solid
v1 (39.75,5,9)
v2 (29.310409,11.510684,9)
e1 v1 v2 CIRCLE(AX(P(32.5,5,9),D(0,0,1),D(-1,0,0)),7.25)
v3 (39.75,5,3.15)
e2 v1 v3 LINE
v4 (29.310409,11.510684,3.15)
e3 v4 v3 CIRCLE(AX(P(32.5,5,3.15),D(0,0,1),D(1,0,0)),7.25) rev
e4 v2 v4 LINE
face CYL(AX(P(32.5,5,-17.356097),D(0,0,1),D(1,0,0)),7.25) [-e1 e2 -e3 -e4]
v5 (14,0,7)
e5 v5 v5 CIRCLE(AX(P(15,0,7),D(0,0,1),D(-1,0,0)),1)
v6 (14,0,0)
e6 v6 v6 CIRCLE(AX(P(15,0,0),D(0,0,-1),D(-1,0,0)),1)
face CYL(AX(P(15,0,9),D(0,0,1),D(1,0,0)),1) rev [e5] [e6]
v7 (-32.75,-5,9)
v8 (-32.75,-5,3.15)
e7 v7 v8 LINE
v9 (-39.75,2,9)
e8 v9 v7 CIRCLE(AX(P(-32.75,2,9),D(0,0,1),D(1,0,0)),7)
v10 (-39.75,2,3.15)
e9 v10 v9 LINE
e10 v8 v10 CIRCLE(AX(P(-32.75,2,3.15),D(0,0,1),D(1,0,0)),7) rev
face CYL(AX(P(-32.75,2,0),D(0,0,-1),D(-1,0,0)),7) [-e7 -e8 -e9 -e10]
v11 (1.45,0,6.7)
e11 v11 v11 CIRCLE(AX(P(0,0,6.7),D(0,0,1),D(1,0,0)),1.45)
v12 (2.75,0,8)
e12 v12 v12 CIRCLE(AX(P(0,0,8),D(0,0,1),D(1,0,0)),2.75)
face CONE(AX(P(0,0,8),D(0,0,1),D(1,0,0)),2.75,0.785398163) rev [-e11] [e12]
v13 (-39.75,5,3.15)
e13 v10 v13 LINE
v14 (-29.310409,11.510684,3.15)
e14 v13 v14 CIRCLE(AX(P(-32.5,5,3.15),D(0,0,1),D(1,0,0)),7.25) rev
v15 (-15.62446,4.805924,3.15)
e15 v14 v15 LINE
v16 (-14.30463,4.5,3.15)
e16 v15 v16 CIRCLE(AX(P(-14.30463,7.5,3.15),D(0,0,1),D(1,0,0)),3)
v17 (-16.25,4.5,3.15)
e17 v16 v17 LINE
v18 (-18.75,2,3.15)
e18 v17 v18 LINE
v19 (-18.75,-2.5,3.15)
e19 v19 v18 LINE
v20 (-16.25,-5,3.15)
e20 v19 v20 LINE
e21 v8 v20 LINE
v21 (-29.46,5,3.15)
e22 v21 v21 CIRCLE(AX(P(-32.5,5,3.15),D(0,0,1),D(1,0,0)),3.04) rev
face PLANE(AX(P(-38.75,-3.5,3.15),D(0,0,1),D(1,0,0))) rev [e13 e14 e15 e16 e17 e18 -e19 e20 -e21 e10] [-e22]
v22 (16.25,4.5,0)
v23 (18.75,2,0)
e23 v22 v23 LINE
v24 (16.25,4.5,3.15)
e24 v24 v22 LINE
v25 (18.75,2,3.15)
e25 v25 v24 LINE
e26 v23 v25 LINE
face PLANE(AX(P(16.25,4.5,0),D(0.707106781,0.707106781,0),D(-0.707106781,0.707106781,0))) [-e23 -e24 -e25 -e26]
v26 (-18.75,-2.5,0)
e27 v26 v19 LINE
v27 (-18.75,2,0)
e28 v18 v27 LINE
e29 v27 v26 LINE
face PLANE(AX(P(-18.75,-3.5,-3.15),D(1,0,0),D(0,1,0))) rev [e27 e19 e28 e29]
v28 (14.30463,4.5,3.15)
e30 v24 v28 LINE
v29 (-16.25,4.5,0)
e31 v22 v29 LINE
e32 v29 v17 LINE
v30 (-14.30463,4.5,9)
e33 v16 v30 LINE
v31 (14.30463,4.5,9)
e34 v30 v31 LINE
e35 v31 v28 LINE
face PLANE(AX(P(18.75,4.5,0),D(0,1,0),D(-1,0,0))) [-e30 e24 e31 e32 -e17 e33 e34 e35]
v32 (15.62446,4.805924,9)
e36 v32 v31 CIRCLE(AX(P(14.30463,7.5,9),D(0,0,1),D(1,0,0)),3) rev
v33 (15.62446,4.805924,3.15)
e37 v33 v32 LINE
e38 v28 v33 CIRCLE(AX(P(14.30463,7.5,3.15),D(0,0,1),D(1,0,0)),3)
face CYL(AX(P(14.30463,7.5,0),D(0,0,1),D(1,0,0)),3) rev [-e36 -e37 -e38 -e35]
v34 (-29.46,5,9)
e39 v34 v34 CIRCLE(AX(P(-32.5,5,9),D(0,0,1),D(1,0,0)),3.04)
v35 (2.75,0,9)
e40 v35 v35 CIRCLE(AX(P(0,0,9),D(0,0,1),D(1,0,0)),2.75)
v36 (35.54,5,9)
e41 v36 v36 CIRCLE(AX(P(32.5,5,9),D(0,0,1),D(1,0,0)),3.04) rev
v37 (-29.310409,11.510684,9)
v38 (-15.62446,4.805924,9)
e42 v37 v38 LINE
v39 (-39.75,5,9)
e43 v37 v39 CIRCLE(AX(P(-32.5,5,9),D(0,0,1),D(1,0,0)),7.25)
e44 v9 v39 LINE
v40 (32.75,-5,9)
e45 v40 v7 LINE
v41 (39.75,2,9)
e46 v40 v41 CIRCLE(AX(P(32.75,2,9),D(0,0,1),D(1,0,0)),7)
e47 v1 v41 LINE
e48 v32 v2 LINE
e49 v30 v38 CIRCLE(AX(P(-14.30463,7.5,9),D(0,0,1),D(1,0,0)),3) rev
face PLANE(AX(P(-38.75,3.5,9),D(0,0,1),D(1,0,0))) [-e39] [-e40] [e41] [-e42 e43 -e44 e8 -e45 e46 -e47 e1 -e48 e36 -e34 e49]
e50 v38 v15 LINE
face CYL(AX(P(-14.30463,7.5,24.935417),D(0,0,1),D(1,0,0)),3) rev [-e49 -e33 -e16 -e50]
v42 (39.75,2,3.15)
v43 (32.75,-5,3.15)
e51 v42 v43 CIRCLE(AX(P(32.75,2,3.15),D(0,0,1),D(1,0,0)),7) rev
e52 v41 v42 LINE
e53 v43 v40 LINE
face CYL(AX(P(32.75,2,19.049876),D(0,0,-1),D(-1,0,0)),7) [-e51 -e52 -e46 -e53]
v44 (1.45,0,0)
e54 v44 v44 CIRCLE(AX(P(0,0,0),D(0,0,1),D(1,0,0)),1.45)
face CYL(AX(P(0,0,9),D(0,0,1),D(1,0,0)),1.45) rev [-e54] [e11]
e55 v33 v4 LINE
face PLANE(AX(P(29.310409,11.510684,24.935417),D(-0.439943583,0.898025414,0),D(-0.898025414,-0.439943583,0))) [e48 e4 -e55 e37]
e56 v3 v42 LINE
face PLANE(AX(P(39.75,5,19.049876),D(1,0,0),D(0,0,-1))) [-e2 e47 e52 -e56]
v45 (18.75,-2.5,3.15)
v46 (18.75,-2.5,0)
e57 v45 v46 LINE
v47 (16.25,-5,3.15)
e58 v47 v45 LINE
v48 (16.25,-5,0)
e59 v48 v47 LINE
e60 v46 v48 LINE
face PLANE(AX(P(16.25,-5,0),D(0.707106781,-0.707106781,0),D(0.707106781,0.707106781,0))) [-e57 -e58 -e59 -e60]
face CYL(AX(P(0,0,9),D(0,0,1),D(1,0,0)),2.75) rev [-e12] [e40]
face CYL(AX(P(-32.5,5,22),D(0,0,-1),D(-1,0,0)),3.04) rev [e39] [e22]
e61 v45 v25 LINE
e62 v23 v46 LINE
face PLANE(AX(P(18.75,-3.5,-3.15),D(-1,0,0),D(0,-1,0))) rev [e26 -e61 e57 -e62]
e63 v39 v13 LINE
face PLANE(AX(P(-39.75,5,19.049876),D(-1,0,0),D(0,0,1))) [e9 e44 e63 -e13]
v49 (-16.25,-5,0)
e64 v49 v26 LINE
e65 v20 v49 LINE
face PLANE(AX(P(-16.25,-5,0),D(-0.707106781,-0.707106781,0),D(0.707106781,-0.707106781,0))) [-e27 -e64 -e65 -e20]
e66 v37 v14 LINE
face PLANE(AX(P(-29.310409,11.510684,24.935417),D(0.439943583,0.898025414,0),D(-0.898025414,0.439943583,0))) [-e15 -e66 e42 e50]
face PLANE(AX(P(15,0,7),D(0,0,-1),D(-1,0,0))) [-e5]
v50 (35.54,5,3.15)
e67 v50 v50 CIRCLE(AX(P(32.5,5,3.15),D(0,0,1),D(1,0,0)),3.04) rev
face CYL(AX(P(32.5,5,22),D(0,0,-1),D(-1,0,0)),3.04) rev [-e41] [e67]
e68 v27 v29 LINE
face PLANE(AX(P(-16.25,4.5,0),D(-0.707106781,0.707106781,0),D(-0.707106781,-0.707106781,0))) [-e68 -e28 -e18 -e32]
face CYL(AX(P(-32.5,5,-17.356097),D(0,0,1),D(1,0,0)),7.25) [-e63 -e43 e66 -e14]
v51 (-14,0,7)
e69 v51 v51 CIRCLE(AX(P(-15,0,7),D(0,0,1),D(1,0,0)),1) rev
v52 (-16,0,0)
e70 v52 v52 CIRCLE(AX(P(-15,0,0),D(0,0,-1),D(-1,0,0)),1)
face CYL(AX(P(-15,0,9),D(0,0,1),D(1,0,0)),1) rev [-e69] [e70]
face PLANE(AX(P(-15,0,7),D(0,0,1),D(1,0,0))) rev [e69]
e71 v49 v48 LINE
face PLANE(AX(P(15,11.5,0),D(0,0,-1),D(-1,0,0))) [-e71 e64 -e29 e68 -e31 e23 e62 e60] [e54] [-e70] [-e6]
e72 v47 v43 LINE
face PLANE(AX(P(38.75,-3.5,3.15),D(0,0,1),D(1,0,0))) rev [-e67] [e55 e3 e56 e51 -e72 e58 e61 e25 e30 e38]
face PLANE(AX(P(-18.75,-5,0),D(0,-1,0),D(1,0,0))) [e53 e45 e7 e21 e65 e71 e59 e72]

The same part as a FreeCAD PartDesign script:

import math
import FreeCAD as App
import Part
import Sketcher
from FreeCAD import Vector
Q = App.Units.Quantity


def edges_at(feature, points):
    """Names of the edges that pass closest to the given points."""
    edges = feature.Shape.Edges
    near = lambda p: min(range(len(edges)), key=lambda i: edges[i].distToShape(Part.Vertex(*p))[0])
    return sorted({f"Edge{near(p) + 1}" for p in points})

doc = App.newDocument("Part")
body = doc.addObject("PartDesign::Body", "Body")

sketch1 = body.newObject("Sketcher::SketchObject", "Sketch")
sketch1.AttachmentSupport = (doc.getObject("XY_Plane"), [""])
sketch1.MapMode = "FlatFace"
sketch1.addGeometry([
    Part.LineSegment(Vector(-39, 4, 0), Vector(-39, -4, 0)),
    Part.LineSegment(Vector(-39, -4, 0), Vector(39, -4, 0)),
    Part.LineSegment(Vector(39, -4, 0), Vector(39, 4, 0)),
    Part.LineSegment(Vector(39, 4, 0), Vector(-39, 4, 0)),
], False)
sketch1.addConstraint([
    Sketcher.Constraint("Coincident", 0, 2, 1, 1),
    Sketcher.Constraint("Coincident", 1, 2, 2, 1),
    Sketcher.Constraint("Coincident", 2, 2, 3, 1),
    Sketcher.Constraint("Coincident", 3, 2, 0, 1),
    Sketcher.Constraint("Vertical", 0),
    Sketcher.Constraint("Horizontal", 1),
    Sketcher.Constraint("Vertical", 2),
    Sketcher.Constraint("Horizontal", 3),
    Sketcher.Constraint("Symmetric", 0, 2, 2, 2, -1, 1),
    Sketcher.Constraint("DistanceY", 0, 2, 0, 1, 7.0),
    Sketcher.Constraint("DistanceX", 1, 1, 1, 2, 77.5),
])
pad1 = body.newObject("PartDesign::Pad", "Pad")
pad1.Profile = sketch1
pad1.Type = "TwoLengths"
pad1.Length = 9
pad1.Length2 = 9

sketch2 = body.newObject("Sketcher::SketchObject", "Sketch001")
sketch2.AttachmentSupport = (doc.getObject("XZ_Plane"), [""])
sketch2.MapMode = "FlatFace"
sketch2.AttachmentOffset = App.Placement(Vector(0, 0, -3.5), App.Rotation())
sketch2.addGeometry([
    Part.LineSegment(Vector(-39, -3, 0), Vector(-39, 3, 0)),
    Part.LineSegment(Vector(-39, 3, 0), Vector(-19, 3, 0)),
    Part.LineSegment(Vector(-19, 3, 0), Vector(-19, -3, 0)),
    Part.LineSegment(Vector(-19, -3, 0), Vector(-39, -3, 0)),
    Part.LineSegment(Vector(19, -3, 0), Vector(19, 3, 0)),
    Part.LineSegment(Vector(19, 3, 0), Vector(39, 3, 0)),
    Part.LineSegment(Vector(39, 3, 0), Vector(39, -3, 0)),
    Part.LineSegment(Vector(39, -3, 0), Vector(19, -3, 0)),
], False)
sketch2.addConstraint([
    Sketcher.Constraint("Coincident", 0, 2, 1, 1),
    Sketcher.Constraint("Coincident", 1, 2, 2, 1),
    Sketcher.Constraint("Coincident", 2, 2, 3, 1),
    Sketcher.Constraint("Coincident", 3, 2, 0, 1),
    Sketcher.Constraint("Coincident", 4, 2, 5, 1),
    Sketcher.Constraint("Coincident", 5, 2, 6, 1),
    Sketcher.Constraint("Coincident", 6, 2, 7, 1),
    Sketcher.Constraint("Coincident", 7, 2, 4, 1),
    Sketcher.Constraint("Vertical", 0),
    Sketcher.Constraint("Horizontal", 1),
    Sketcher.Constraint("Vertical", 2),
    Sketcher.Constraint("Horizontal", 3),
    Sketcher.Constraint("Vertical", 4),
    Sketcher.Constraint("Horizontal", 5),
    Sketcher.Constraint("Vertical", 6),
    Sketcher.Constraint("Horizontal", 7),
    Sketcher.Constraint("Symmetric", 2, 2, 4, 2, -1, 1),
    Sketcher.Constraint("Symmetric", 0, 2, 6, 2, -1, 1),
    Sketcher.Constraint("Horizontal", 1, 2, 4, 2),
    Sketcher.Constraint("DistanceX", 1, 1, 1, 2, 20.0),
    Sketcher.Constraint("DistanceY", 0, 1, 0, 2, 6.3),
    Sketcher.Constraint("DistanceX", 1, 2, 4, 2, 37.5),
])
pocket1 = body.newObject("PartDesign::Pocket", "Pocket")
pocket1.Profile = sketch2
pocket1.Type = "ThroughAll"
pocket1.Reversed = True

sketch3 = body.newObject("Sketcher::SketchObject", "Sketch002")
sketch3.AttachmentSupport = (doc.getObject("XZ_Plane"), [""])
sketch3.MapMode = "FlatFace"
sketch3.AttachmentOffset = App.Placement(Vector(0, 0, -3.5), App.Rotation())
sketch3.addGeometry([
    Part.LineSegment(Vector(-39, -9, 0), Vector(-39, -3, 0)),
    Part.LineSegment(Vector(-39, -3, 0), Vector(-26, -3, 0)),
    Part.LineSegment(Vector(-26, -3, 0), Vector(-26, -9, 0)),
    Part.LineSegment(Vector(-26, -9, 0), Vector(-39, -9, 0)),
    Part.LineSegment(Vector(-39, 3, 0), Vector(-39, 9, 0)),
    Part.LineSegment(Vector(-39, 9, 0), Vector(-26, 9, 0)),
    Part.LineSegment(Vector(-26, 9, 0), Vector(-26, 3, 0)),
    Part.LineSegment(Vector(-26, 3, 0), Vector(-39, 3, 0)),
    Part.LineSegment(Vector(26, 3, 0), Vector(26, 9, 0)),
    Part.LineSegment(Vector(26, 9, 0), Vector(39, 9, 0)),
    Part.LineSegment(Vector(39, 9, 0), Vector(39, 3, 0)),
    Part.LineSegment(Vector(39, 3, 0), Vector(26, 3, 0)),
    Part.LineSegment(Vector(26, -9, 0), Vector(26, -3, 0)),
    Part.LineSegment(Vector(26, -3, 0), Vector(39, -3, 0)),
    Part.LineSegment(Vector(39, -3, 0), Vector(39, -9, 0)),
    Part.LineSegment(Vector(39, -9, 0), Vector(26, -9, 0)),
], False)
sketch3.addConstraint([
    Sketcher.Constraint("Coincident", 0, 2, 1, 1),
    Sketcher.Constraint("Coincident", 1, 2, 2, 1),
    Sketcher.Constraint("Coincident", 2, 2, 3, 1),
    Sketcher.Constraint("Coincident", 3, 2, 0, 1),
    Sketcher.Constraint("Coincident", 4, 2, 5, 1),
    Sketcher.Constraint("Coincident", 5, 2, 6, 1),
    Sketcher.Constraint("Coincident", 6, 2, 7, 1),
    Sketcher.Constraint("Coincident", 7, 2, 4, 1),
    Sketcher.Constraint("Coincident", 8, 2, 9, 1),
    Sketcher.Constraint("Coincident", 9, 2, 10, 1),
    Sketcher.Constraint("Coincident", 10, 2, 11, 1),
    Sketcher.Constraint("Coincident", 11, 2, 8, 1),
    Sketcher.Constraint("Coincident", 12, 2, 13, 1),
    Sketcher.Constraint("Coincident", 13, 2, 14, 1),
    Sketcher.Constraint("Coincident", 14, 2, 15, 1),
    Sketcher.Constraint("Coincident", 15, 2, 12, 1),
    Sketcher.Constraint("Vertical", 0),
    Sketcher.Constraint("Horizontal", 1),
    Sketcher.Constraint("Vertical", 2),
    Sketcher.Constraint("Horizontal", 3),
    Sketcher.Constraint("Vertical", 4),
    Sketcher.Constraint("Horizontal", 5),
    Sketcher.Constraint("Vertical", 6),
    Sketcher.Constraint("Horizontal", 7),
    Sketcher.Constraint("Vertical", 8),
    Sketcher.Constraint("Horizontal", 9),
    Sketcher.Constraint("Vertical", 10),
    Sketcher.Constraint("Horizontal", 11),
    Sketcher.Constraint("Vertical", 12),
    Sketcher.Constraint("Horizontal", 13),
    Sketcher.Constraint("Vertical", 14),
    Sketcher.Constraint("Horizontal", 15),
    Sketcher.Constraint("Symmetric", 2, 2, 8, 2, -1, 1),
    Sketcher.Constraint("Symmetric", 0, 2, 10, 2, -1, 1),
    Sketcher.Constraint("Symmetric", 6, 2, 12, 2, -1, 1),
    Sketcher.Constraint("Symmetric", 4, 2, 14, 2, -1, 1),
    Sketcher.Constraint("Symmetric", 5, 2, 8, 2, -2),
    Sketcher.Constraint("Symmetric", 7, 2, 10, 2, -2),
    Sketcher.Constraint("DistanceX", 1, 1, 1, 2, 12.5),
    Sketcher.Constraint("DistanceY", 2, 2, -1, 1, 9.0),
    Sketcher.Constraint("DistanceX", 4, 2, 8, 2, 65.0),
    Sketcher.Constraint("DistanceY", 0, 1, 0, 2, 5.85),
])
pad2 = body.newObject("PartDesign::Pad", "Pad001")
pad2.Profile = sketch3
pad2.Length = 8
pad2.Reversed = True

sketch4 = body.newObject("Sketcher::SketchObject", "Sketch003")
sketch4.AttachmentSupport = (doc.getObject("XY_Plane"), [""])
sketch4.MapMode = "FlatFace"
sketch4.addGeometry([
    Part.Circle(Vector(-32.5, 5, 0), Vector(0, 0, 1), 3),
    Part.Circle(Vector(32.5, 5, 0), Vector(0, 0, 1), 3),
], False)
sketch4.addConstraint([
    Sketcher.Constraint("Equal", 0, 1),
    Sketcher.Constraint("Symmetric", 0, 3, 1, 3, -2),
    Sketcher.Constraint("Diameter", 0, 6.08),
    Sketcher.Constraint("DistanceY", -1, 1, 0, 3, 5.0),
    Sketcher.Constraint("DistanceX", 0, 3, 1, 3, 65.0),
])
pocket2 = body.newObject("PartDesign::Pocket", "Pocket001")
pocket2.Profile = sketch4
pocket2.Type = "ThroughAll"
pocket2.Midplane = True

sketch5 = body.newObject("Sketcher::SketchObject", "Sketch004")
sketch5.AttachmentSupport = (doc.getObject("XY_Plane"), [""])
sketch5.MapMode = "FlatFace"
sketch5.addGeometry([
    Part.LineSegment(Vector(15, 4, 0), Vector(36, -2, 0)),
    Part.LineSegment(Vector(36, -2, 0), Vector(36, 12, 0)),
    Part.LineSegment(Vector(36, 12, 0), Vector(15, 12, 0)),
    Part.LineSegment(Vector(15, 12, 0), Vector(15, 4, 0)),
], False)
sketch5.addConstraint([
    Sketcher.Constraint("Coincident", 0, 2, 1, 1),
    Sketcher.Constraint("Coincident", 1, 2, 2, 1),
    Sketcher.Constraint("Coincident", 2, 2, 3, 1),
    Sketcher.Constraint("Coincident", 3, 2, 0, 1),
    Sketcher.Constraint("Vertical", 1),
    Sketcher.Constraint("Horizontal", 2),
    Sketcher.Constraint("Vertical", 3),
    Sketcher.Constraint("DistanceY", 3, 2, 3, 1, 8.0),
    Sketcher.Constraint("Angle", 0, Q("-15 deg")),
    Sketcher.Constraint("DistanceX", -1, 1, 2, 2, 15.0),
    Sketcher.Constraint("DistanceY", -1, 1, 1, 2, 11.5),
    Sketcher.Constraint("DistanceX", 2, 2, 2, 1, 21.256888),
])
pocket3 = body.newObject("PartDesign::Pocket", "Pocket002")
pocket3.Profile = sketch5
pocket3.Length = 5

sketch6 = body.newObject("Sketcher::SketchObject", "Sketch005")
sketch6.AttachmentSupport = (doc.getObject("XY_Plane"), [""])
sketch6.MapMode = "FlatFace"
sketch6.AttachmentOffset = App.Placement(Vector(0, 0, 9), App.Rotation())
sketch6.addGeometry(Part.Circle(Vector(32, 5, 0), Vector(0, 0, 1), 6), False)
sketch6.addConstraint([
    Sketcher.Constraint("Diameter", 0, 12.4),
    Sketcher.Constraint("DistanceY", -1, 1, 0, 3, 5.0),
    Sketcher.Constraint("DistanceX", -1, 1, 0, 3, 32.5),
])
pocket4 = body.newObject("PartDesign::Pocket", "Pocket003")
pocket4.Profile = sketch6
pocket4.Length = 1
doc.recompute()

mirrored = body.newObject("PartDesign::Mirrored", "Mirrored")
mirrored.Originals = [pocket4]
mirrored.MirrorPlane = (doc.getObject("XY_Plane"), [""])
body.Tip = mirrored
doc.recompute()

mirrored2 = body.newObject("PartDesign::Mirrored", "Mirrored001")
mirrored2.Originals = [pocket4]
mirrored2.MirrorPlane = (doc.getObject("YZ_Plane"), [""])
body.Tip = mirrored2

sketch7 = body.newObject("Sketcher::SketchObject", "Sketch006")
sketch7.AttachmentSupport = (doc.getObject("XY_Plane"), [""])
sketch7.MapMode = "FlatFace"
sketch7.AttachmentOffset = App.Placement(Vector(0, 0, -9), App.Rotation())
sketch7.addGeometry(Part.Circle(Vector(-32, 5, 0), Vector(0, 0, 1), 6), False)
sketch7.addConstraint([
    Sketcher.Constraint("Diameter", 0, 12.4),
    Sketcher.Constraint("DistanceY", -1, 1, 0, 3, 5.0),
    Sketcher.Constraint("DistanceX", 0, 3, -1, 1, 32.5),
])
pocket5 = body.newObject("PartDesign::Pocket", "Pocket004")
pocket5.Profile = sketch7
pocket5.Length = 1
pocket5.Reversed = True

sketch8 = body.newObject("Sketcher::SketchObject", "Sketch007")
sketch8.AttachmentSupport = (doc.getObject("XY_Plane"), [""])
sketch8.MapMode = "FlatFace"
sketch8.AttachmentOffset = App.Placement(Vector(0, 0, 9), App.Rotation())
sketch8.addGeometry([
    Part.LineSegment(Vector(-39, 12, 0), Vector(-39, 3, 0)),
    Part.LineSegment(Vector(-39, 3, 0), Vector(-26, 3, 0)),
    Part.LineSegment(Vector(-26, 3, 0), Vector(-26, 12, 0)),
    Part.LineSegment(Vector(-26, 12, 0), Vector(-39, 12, 0)),
], False)
sketch8.addConstraint([
    Sketcher.Constraint("Coincident", 0, 2, 1, 1),
    Sketcher.Constraint("Coincident", 1, 2, 2, 1),
    Sketcher.Constraint("Coincident", 2, 2, 3, 1),
    Sketcher.Constraint("Coincident", 3, 2, 0, 1),
    Sketcher.Constraint("Vertical", 0),
    Sketcher.Constraint("Horizontal", 1),
    Sketcher.Constraint("Vertical", 2),
    Sketcher.Constraint("Horizontal", 3),
    Sketcher.Constraint("DistanceX", 1, 1, 1, 2, 12.5),
    Sketcher.Constraint("DistanceY", 0, 2, 0, 1, 8.5),
    Sketcher.Constraint("DistanceY", -1, 1, 0, 2, 3.0),
    Sketcher.Constraint("DistanceX", 0, 2, -1, 1, 38.75),
])
pocket6 = body.newObject("PartDesign::Pocket", "Pocket005")
pocket6.Profile = sketch8
pocket6.Length = 1
doc.recompute()

mirrored3 = body.newObject("PartDesign::Mirrored", "Mirrored002")
mirrored3.Originals = [pocket6]
mirrored3.MirrorPlane = (doc.getObject("YZ_Plane"), [""])
body.Tip = mirrored3
doc.recompute()

mirrored4 = body.newObject("PartDesign::Mirrored", "Mirrored003")
mirrored4.Originals = [pocket6]
mirrored4.MirrorPlane = (doc.getObject("XY_Plane"), [""])
body.Tip = mirrored4

sketch9 = body.newObject("Sketcher::SketchObject", "Sketch008")
sketch9.AttachmentSupport = (doc.getObject("XY_Plane"), [""])
sketch9.MapMode = "FlatFace"
sketch9.AttachmentOffset = App.Placement(Vector(0, 0, -9), App.Rotation())
sketch9.addGeometry([
    Part.LineSegment(Vector(39, 12, 0), Vector(39, 3, 0)),
    Part.LineSegment(Vector(39, 3, 0), Vector(26, 3, 0)),
    Part.LineSegment(Vector(26, 3, 0), Vector(26, 12, 0)),
    Part.LineSegment(Vector(26, 12, 0), Vector(39, 12, 0)),
], False)
sketch9.addConstraint([
    Sketcher.Constraint("Coincident", 0, 2, 1, 1),
    Sketcher.Constraint("Coincident", 1, 2, 2, 1),
    Sketcher.Constraint("Coincident", 2, 2, 3, 1),
    Sketcher.Constraint("Coincident", 3, 2, 0, 1),
    Sketcher.Constraint("Vertical", 0),
    Sketcher.Constraint("Horizontal", 1),
    Sketcher.Constraint("Vertical", 2),
    Sketcher.Constraint("Horizontal", 3),
    Sketcher.Constraint("DistanceX", 1, 2, 1, 1, 12.5),
    Sketcher.Constraint("DistanceY", 0, 2, 0, 1, 8.5),
    Sketcher.Constraint("DistanceY", -1, 1, 0, 2, 3.0),
    Sketcher.Constraint("DistanceX", -1, 1, 0, 2, 38.75),
])
pocket7 = body.newObject("PartDesign::Pocket", "Pocket006")
pocket7.Profile = sketch9
pocket7.Length = 1
pocket7.Reversed = True

sketch10 = body.newObject("Sketcher::SketchObject", "Sketch009")
sketch10.AttachmentSupport = (doc.getObject("XY_Plane"), [""])
sketch10.MapMode = "FlatFace"
sketch10.AttachmentOffset = App.Placement(Vector(0, 0, 9), App.Rotation())
sketch10.addGeometry([
    Part.Circle(Vector(-25, 0, 0), Vector(0, 0, 1), 0.8),
    Part.Circle(Vector(0, 0, 0), Vector(0, 0, 1), 0.8),
    Part.Circle(Vector(25, 0, 0), Vector(0, 0, 1), 0.8),
], False)
sketch10.addConstraint([
    Sketcher.Constraint("Coincident", 1, 3, -1, 1),
    Sketcher.Constraint("Equal", 0, 1),
    Sketcher.Constraint("Equal", 1, 2),
    Sketcher.Constraint("Symmetric", 0, 3, 2, 3, -1, 1),
    Sketcher.Constraint("PointOnObject", 0, 3, -1),
    Sketcher.Constraint("Diameter", 0, 1.6),
    Sketcher.Constraint("DistanceX", 0, 3, -1, 1, 25.0),
])
doc.recompute()
hole = body.newObject("PartDesign::Hole", "Hole")
hole.Profile = sketch10
hole.ThreadType = "None"
hole.Diameter = 1.6
hole.DepthType = "ThroughAll"

sketch11 = body.newObject("Sketcher::SketchObject", "Sketch010")
sketch11.AttachmentSupport = (doc.getObject("XY_Plane"), [""])
sketch11.MapMode = "FlatFace"
sketch11.AttachmentOffset = App.Placement(Vector(0, 0, 9), App.Rotation())
sketch11.addGeometry([
    Part.LineSegment(Vector(-39, 21, 0), Vector(-39, 5, 0)),
    Part.ArcOfCircle(Part.Circle(Vector(-32, 5, 0), Vector(0, 0, 1), 6), math.radians(0), math.radians(180)),
    Part.LineSegment(Vector(-26, 5, 0), Vector(-26, 21, 0)),
    Part.LineSegment(Vector(-26, 21, 0), Vector(-39, 21, 0)),
], False)
sketch11.addConstraint([
    Sketcher.Constraint("Tangent", 0, 2, 1, 2),
    Sketcher.Constraint("Tangent", 1, 1, 2, 1),
    Sketcher.Constraint("Coincident", 2, 2, 3, 1),
    Sketcher.Constraint("Coincident", 3, 2, 0, 1),
    Sketcher.Constraint("Vertical", 0),
    Sketcher.Constraint("Vertical", 2),
    Sketcher.Constraint("Horizontal", 3),
    Sketcher.Constraint("Radius", 1, 6.25),
    Sketcher.Constraint("DistanceY", -1, 1, 1, 3, 5.0),
    Sketcher.Constraint("DistanceX", 1, 3, -1, 1, 32.5),
    Sketcher.Constraint("DistanceY", 0, 2, 0, 1, 16.221242),
])
pocket8 = body.newObject("PartDesign::Pocket", "Pocket007")
pocket8.Profile = sketch11
pocket8.Length = 27
doc.recompute()

mirrored5 = body.newObject("PartDesign::Mirrored", "Mirrored004")
mirrored5.Originals = [pocket8]
mirrored5.MirrorPlane = (doc.getObject("YZ_Plane"), [""])
body.Tip = mirrored5

sketch12 = body.newObject("Sketcher::SketchObject", "Sketch011")
sketch12.AttachmentSupport = (doc.getObject("XY_Plane"), [""])
sketch12.MapMode = "FlatFace"
sketch12.addGeometry([
    Part.LineSegment(Vector(-42, 18, 0), Vector(-42, -18, 0)),
    Part.LineSegment(Vector(-42, -18, 0), Vector(42, -18, 0)),
    Part.LineSegment(Vector(42, -18, 0), Vector(42, 18, 0)),
    Part.LineSegment(Vector(42, 18, 0), Vector(-42, 18, 0)),
], False)
sketch12.addConstraint([
    Sketcher.Constraint("Coincident", 0, 2, 1, 1),
    Sketcher.Constraint("Coincident", 1, 2, 2, 1),
    Sketcher.Constraint("Coincident", 2, 2, 3, 1),
    Sketcher.Constraint("Coincident", 3, 2, 0, 1),
    Sketcher.Constraint("Vertical", 0),
    Sketcher.Constraint("Horizontal", 1),
    Sketcher.Constraint("Vertical", 2),
    Sketcher.Constraint("Horizontal", 3),
    Sketcher.Constraint("Symmetric", 0, 2, 2, 2, -1, 1),
    Sketcher.Constraint("DistanceX", 1, 1, 1, 2, 83.83084),
    Sketcher.Constraint("DistanceY", 0, 2, 0, 1, 36.587504),
])
pocket9 = body.newObject("PartDesign::Pocket", "Pocket008")
pocket9.Profile = sketch12
pocket9.Length = 22

sketch13 = body.newObject("Sketcher::SketchObject", "Sketch012")
sketch13.AttachmentSupport = (doc.getObject("XY_Plane"), [""])
sketch13.MapMode = "FlatFace"
sketch13.AttachmentOffset = App.Placement(Vector(0, 0, 9), App.Rotation())
sketch13.addGeometry(Part.Circle(Vector(-15, 0, 0), Vector(0, 0, 1), 1), False)
sketch13.addConstraint([
    Sketcher.Constraint("PointOnObject", 0, 3, -1),
    Sketcher.Constraint("Diameter", 0, 2.0),
    Sketcher.Constraint("DistanceX", 0, 3, -1, 1, 15.0),
])
doc.recompute()
hole2 = body.newObject("PartDesign::Hole", "Hole001")
hole2.Profile = sketch13
hole2.ThreadType = "None"
hole2.Diameter = 2
hole2.DepthType = "Dimension"
hole2.Depth = 30.5
hole2.DrillPoint = "Flat"

sketch14 = body.newObject("Sketcher::SketchObject", "Sketch013")
sketch14.AttachmentSupport = (doc.getObject("XY_Plane"), [""])
sketch14.MapMode = "FlatFace"
sketch14.AttachmentOffset = App.Placement(Vector(0, 0, 9), App.Rotation())
sketch14.addGeometry(Part.Circle(Vector(15, 0, 0), Vector(0, 0, 1), 1), False)
sketch14.addConstraint([
    Sketcher.Constraint("PointOnObject", 0, 3, -1),
    Sketcher.Constraint("Diameter", 0, 2.0),
    Sketcher.Constraint("DistanceX", -1, 1, 0, 3, 15.0),
])
doc.recompute()
hole3 = body.newObject("PartDesign::Hole", "Hole002")
hole3.Profile = sketch14
hole3.ThreadType = "None"
hole3.Diameter = 2
hole3.DepthType = "Dimension"
hole3.Depth = 16
hole3.DrillPoint = "Angled"
hole3.DrillPointAngle = 118

sketch15 = body.newObject("Sketcher::SketchObject", "Sketch014")
sketch15.AttachmentSupport = (doc.getObject("XY_Plane"), [""])
sketch15.MapMode = "FlatFace"
sketch15.AttachmentOffset = App.Placement(Vector(0, 0, 8), App.Rotation())
sketch15.addGeometry([
    Part.LineSegment(Vector(38.37, 3, 0), Vector(38.75, 3, 0)),
    Part.LineSegment(Vector(38.75, 3, 0), Vector(38.75, 5, 0)),
    Part.ArcOfCircle(Part.Circle(Vector(32.5, 5, 0), Vector(0, 0, 1), 6.25), math.radians(0), math.radians(180)),
    Part.LineSegment(Vector(26.25, 5, 0), Vector(26.25, 3, 0)),
    Part.LineSegment(Vector(26.25, 3, 0), Vector(26.63, 3, 0)),
    Part.ArcOfCircle(Part.Circle(Vector(32.5, 5, 0), Vector(0, 0, 1), 6.2), math.radians(-161), math.radians(-19)),
    Part.Circle(Vector(32.5, 5, 0), Vector(0, 0, 1), 3.04),
], False)
sketch15.addConstraint([
    Sketcher.Constraint("Coincident", 0, 2, 1, 1),
    Sketcher.Constraint("Tangent", 1, 2, 2, 1),
    Sketcher.Constraint("Tangent", 2, 2, 3, 1),
    Sketcher.Constraint("Coincident", 3, 2, 4, 1),
    Sketcher.Constraint("Coincident", 4, 2, 5, 1),
    Sketcher.Constraint("Coincident", 5, 2, 0, 1),
    Sketcher.Constraint("Horizontal", 0),
    Sketcher.Constraint("Vertical", 1),
    Sketcher.Constraint("Vertical", 3),
    Sketcher.Constraint("Horizontal", 4),
    Sketcher.Constraint("Coincident", 5, 3, 2, 3),
    Sketcher.Constraint("Coincident", 6, 3, 2, 3),
    Sketcher.Constraint("Horizontal", 0, 2, 3, 2),
    Sketcher.Constraint("Radius", 5, 6.2),
    Sketcher.Constraint("Diameter", 6, 6.08),
    Sketcher.Constraint("DistanceY", 1, 1, 1, 2, 2.0),
    Sketcher.Constraint("Radius", 2, 6.25),
    Sketcher.Constraint("DistanceY", -1, 1, 2, 3, 5.0),
    Sketcher.Constraint("DistanceX", -1, 1, 2, 3, 32.5),
])
pad3 = body.newObject("PartDesign::Pad", "Pad002")
pad3.Profile = sketch15
pad3.Length = 1
doc.recompute()

mirrored6 = body.newObject("PartDesign::Mirrored", "Mirrored005")
mirrored6.Originals = [pad3]
mirrored6.MirrorPlane = (doc.getObject("YZ_Plane"), [""])
body.Tip = mirrored6

sketch16 = body.newObject("Sketcher::SketchObject", "Sketch015")
sketch16.AttachmentSupport = (doc.getObject("XY_Plane"), [""])
sketch16.MapMode = "FlatFace"
sketch16.AttachmentOffset = App.Placement(Vector(0, 0, 9), App.Rotation())
sketch16.addGeometry([
    Part.Circle(Vector(-25, 0, 0), Vector(0, 0, 1), 0.8),
    Part.Circle(Vector(25, 0, 0), Vector(0, 0, 1), 0.8),
], False)
sketch16.addConstraint([
    Sketcher.Constraint("Equal", 0, 1),
    Sketcher.Constraint("Symmetric", 0, 3, 1, 3, -1, 1),
    Sketcher.Constraint("PointOnObject", 0, 3, -1),
    Sketcher.Constraint("Diameter", 0, 1.6),
    Sketcher.Constraint("DistanceX", 0, 3, -1, 1, 25.0),
])
pad4 = body.newObject("PartDesign::Pad", "Pad003")
pad4.Profile = sketch16
pad4.Length = 5.85
pad4.Reversed = True

sketch17 = body.newObject("Sketcher::SketchObject", "Sketch016")
sketch17.AttachmentSupport = (doc.getObject("XY_Plane"), [""])
sketch17.MapMode = "FlatFace"
sketch17.AttachmentOffset = App.Placement(Vector(0, 0, 9), App.Rotation())
sketch17.addGeometry(Part.Circle(Vector(0, 0, 0), Vector(0, 0, 1), 0.8), False)
sketch17.addConstraint([
    Sketcher.Constraint("Coincident", 0, 3, -1, 1),
    Sketcher.Constraint("Diameter", 0, 1.6),
])
pad5 = body.newObject("PartDesign::Pad", "Pad004")
pad5.Profile = sketch17
pad5.Length = 9
pad5.Reversed = True

sketch18 = body.newObject("Sketcher::SketchObject", "Sketch017")
sketch18.AttachmentSupport = (doc.getObject("XZ_Plane"), [""])
sketch18.MapMode = "FlatFace"
sketch18.AttachmentOffset = App.Placement(Vector(0, 0, 3.5), App.Rotation())
sketch18.addGeometry([
    Part.LineSegment(Vector(-18.8, 0, 0), Vector(18.8, 0, 0)),
    Part.LineSegment(Vector(18.8, 0, 0), Vector(18.8, 3.1, 0)),
    Part.LineSegment(Vector(18.8, 3.1, 0), Vector(38.8, 3.1, 0)),
    Part.LineSegment(Vector(38.8, 3.1, 0), Vector(38.8, 9, 0)),
    Part.LineSegment(Vector(38.8, 9, 0), Vector(-38.8, 9, 0)),
    Part.LineSegment(Vector(-38.8, 9, 0), Vector(-38.8, 3.1, 0)),
    Part.LineSegment(Vector(-38.8, 3.1, 0), Vector(-18.8, 3.1, 0)),
    Part.LineSegment(Vector(-18.8, 3.1, 0), Vector(-18.8, 0, 0)),
], False)
sketch18.addConstraint([
    Sketcher.Constraint("Coincident", 0, 2, 1, 1),
    Sketcher.Constraint("Coincident", 1, 2, 2, 1),
    Sketcher.Constraint("Coincident", 2, 2, 3, 1),
    Sketcher.Constraint("Coincident", 3, 2, 4, 1),
    Sketcher.Constraint("Coincident", 4, 2, 5, 1),
    Sketcher.Constraint("Coincident", 5, 2, 6, 1),
    Sketcher.Constraint("Coincident", 6, 2, 7, 1),
    Sketcher.Constraint("Coincident", 7, 2, 0, 1),
    Sketcher.Constraint("Horizontal", 0),
    Sketcher.Constraint("Vertical", 1),
    Sketcher.Constraint("Horizontal", 2),
    Sketcher.Constraint("Vertical", 3),
    Sketcher.Constraint("Horizontal", 4),
    Sketcher.Constraint("Vertical", 5),
    Sketcher.Constraint("Horizontal", 6),
    Sketcher.Constraint("Vertical", 7),
    Sketcher.Constraint("Symmetric", 0, 2, 7, 2, -1, 1),
    Sketcher.Constraint("Symmetric", 2, 2, 5, 2, -2),
    Sketcher.Constraint("DistanceX", 2, 1, 2, 2, 20.0),
    Sketcher.Constraint("DistanceX", 0, 1, 0, 2, 37.5),
    Sketcher.Constraint("DistanceY", -1, 1, 3, 2, 9.0),
    Sketcher.Constraint("DistanceY", 1, 1, 1, 2, 3.15),
])
pad6 = body.newObject("PartDesign::Pad", "Pad005")
pad6.Profile = sketch18
pad6.Length = 1.5

sketch19 = body.newObject("Sketcher::SketchObject", "Sketch018")
sketch19.AttachmentSupport = (doc.getObject("YZ_Plane"), [""])
sketch19.MapMode = "FlatFace"
sketch19.addGeometry([
    Part.LineSegment(Vector(0, 0, 0), Vector(0, 9, 0)),
    Part.LineSegment(Vector(0, 9, 0), Vector(-2.8, 9, 0)),
    Part.LineSegment(Vector(-2.8, 9, 0), Vector(-2.8, 8, 0)),
    Part.LineSegment(Vector(-2.8, 8, 0), Vector(-1.4, 6.7, 0)),
    Part.LineSegment(Vector(-1.4, 6.7, 0), Vector(-1.4, 0, 0)),
    Part.LineSegment(Vector(-1.4, 0, 0), Vector(0, 0, 0)),
], False)
sketch19.addConstraint([
    Sketcher.Constraint("Coincident", 0, 2, 1, 1),
    Sketcher.Constraint("Coincident", 1, 2, 2, 1),
    Sketcher.Constraint("Coincident", 2, 2, 3, 1),
    Sketcher.Constraint("Coincident", 3, 2, 4, 1),
    Sketcher.Constraint("Coincident", 4, 2, 5, 1),
    Sketcher.Constraint("Coincident", 5, 2, 0, 1),
    Sketcher.Constraint("Vertical", 0),
    Sketcher.Constraint("Horizontal", 1),
    Sketcher.Constraint("Vertical", 2),
    Sketcher.Constraint("Vertical", 4),
    Sketcher.Constraint("Horizontal", 5),
    Sketcher.Constraint("Coincident", 5, 2, -1, 1),
    Sketcher.Constraint("DistanceY", 0, 1, 0, 2, 9.0),
    Sketcher.Constraint("DistanceY", 2, 2, 2, 1, 1.0),
    Sketcher.Constraint("Angle", 3, Q("-45 deg")),
    Sketcher.Constraint("DistanceY", 4, 2, 4, 1, 6.7),
    Sketcher.Constraint("DistanceX", 1, 2, 1, 1, 2.75),
])
groove = body.newObject("PartDesign::Groove", "Groove")
groove.Profile = sketch19
groove.ReferenceAxis = (sketch19, ["V_Axis"])
groove.Angle = 360

sketch20 = body.newObject("Sketcher::SketchObject", "Sketch019")
sketch20.AttachmentSupport = (doc.getObject("XZ_Plane"), [""])
sketch20.MapMode = "FlatFace"
sketch20.AttachmentOffset = App.Placement(Vector(0, 0, -3.5), App.Rotation())
sketch20.addGeometry([
    Part.LineSegment(Vector(18.8, 0, 0), Vector(-18.8, 0, 0)),
    Part.LineSegment(Vector(-18.8, 0, 0), Vector(-18.8, 3.1, 0)),
    Part.LineSegment(Vector(-18.8, 3.1, 0), Vector(-26.2, 3.1, 0)),
    Part.LineSegment(Vector(-26.2, 3.1, 0), Vector(-26.2, 9, 0)),
    Part.LineSegment(Vector(-26.2, 9, 0), Vector(26.2, 9, 0)),
    Part.LineSegment(Vector(26.2, 9, 0), Vector(26.2, 3.1, 0)),
    Part.LineSegment(Vector(26.2, 3.1, 0), Vector(18.8, 3.1, 0)),
    Part.LineSegment(Vector(18.8, 3.1, 0), Vector(18.8, 0, 0)),
], False)
sketch20.addConstraint([
    Sketcher.Constraint("Coincident", 0, 2, 1, 1),
    Sketcher.Constraint("Coincident", 1, 2, 2, 1),
    Sketcher.Constraint("Coincident", 2, 2, 3, 1),
    Sketcher.Constraint("Coincident", 3, 2, 4, 1),
    Sketcher.Constraint("Coincident", 4, 2, 5, 1),
    Sketcher.Constraint("Coincident", 5, 2, 6, 1),
    Sketcher.Constraint("Coincident", 6, 2, 7, 1),
    Sketcher.Constraint("Coincident", 7, 2, 0, 1),
    Sketcher.Constraint("Horizontal", 0),
    Sketcher.Constraint("Vertical", 1),
    Sketcher.Constraint("Horizontal", 2),
    Sketcher.Constraint("Vertical", 3),
    Sketcher.Constraint("Horizontal", 4),
    Sketcher.Constraint("Vertical", 5),
    Sketcher.Constraint("Horizontal", 6),
    Sketcher.Constraint("Vertical", 7),
    Sketcher.Constraint("Symmetric", 0, 2, 7, 2, -1, 1),
    Sketcher.Constraint("Symmetric", 2, 2, 5, 2, -2),
    Sketcher.Constraint("DistanceX", 0, 2, 0, 1, 37.5),
    Sketcher.Constraint("DistanceX", 2, 2, 2, 1, 7.5),
    Sketcher.Constraint("DistanceY", -1, 1, 3, 2, 9.0),
    Sketcher.Constraint("DistanceY", 1, 1, 1, 2, 3.15),
])
pad7 = body.newObject("PartDesign::Pad", "Pad006")
pad7.Profile = sketch20
pad7.Length = 1
pad7.Reversed = True

sketch21 = body.newObject("Sketcher::SketchObject", "Sketch020")
sketch21.AttachmentSupport = (doc.getObject("XY_Plane"), [""])
sketch21.MapMode = "FlatFace"
sketch21.AttachmentOffset = App.Placement(Vector(0, 0, 9), App.Rotation())
sketch21.addGeometry([
    Part.Circle(Vector(-32, 5, 0), Vector(0, 0, 1), 7),
    Part.Circle(Vector(-32, 5, 0), Vector(0, 0, 1), 6),
    Part.Circle(Vector(32, 5, 0), Vector(0, 0, 1), 7),
    Part.Circle(Vector(32, 5, 0), Vector(0, 0, 1), 6),
], False)
sketch21.addConstraint([
    Sketcher.Constraint("Coincident", 1, 3, 0, 3),
    Sketcher.Constraint("Coincident", 3, 3, 2, 3),
    Sketcher.Constraint("Equal", 0, 2),
    Sketcher.Constraint("Equal", 1, 3),
    Sketcher.Constraint("Symmetric", 0, 3, 2, 3, -2),
    Sketcher.Constraint("Diameter", 0, 14.5),
    Sketcher.Constraint("Diameter", 1, 12.5),
    Sketcher.Constraint("DistanceY", -1, 1, 0, 3, 5.0),
    Sketcher.Constraint("DistanceX", 0, 3, 2, 3, 65.0),
])
pad8 = body.newObject("PartDesign::Pad", "Pad007")
pad8.Profile = sketch21
pad8.Length = 5.85
pad8.Reversed = True

sketch22 = body.newObject("Sketcher::SketchObject", "Sketch021")
sketch22.AttachmentSupport = (doc.getObject("XY_Plane"), [""])
sketch22.MapMode = "FlatFace"
sketch22.AttachmentOffset = App.Placement(Vector(0, 0, 3.15), App.Rotation())
sketch22.addGeometry([
    Part.LineSegment(Vector(15, 4, 0), Vector(29, 12, 0)),
    Part.LineSegment(Vector(29, 12, 0), Vector(25, 4, 0)),
    Part.LineSegment(Vector(25, 4, 0), Vector(15, 4, 0)),
    Part.LineSegment(Vector(-25, 4, 0), Vector(-29, 12, 0)),
    Part.LineSegment(Vector(-29, 12, 0), Vector(-15, 4, 0)),
    Part.LineSegment(Vector(-15, 4, 0), Vector(-25, 4, 0)),
], False)
sketch22.addConstraint([
    Sketcher.Constraint("Coincident", 0, 2, 1, 1),
    Sketcher.Constraint("Coincident", 1, 2, 2, 1),
    Sketcher.Constraint("Coincident", 2, 2, 0, 1),
    Sketcher.Constraint("Coincident", 3, 2, 4, 1),
    Sketcher.Constraint("Coincident", 4, 2, 5, 1),
    Sketcher.Constraint("Coincident", 5, 2, 3, 1),
    Sketcher.Constraint("Horizontal", 2),
    Sketcher.Constraint("Horizontal", 5),
    Sketcher.Constraint("Symmetric", 0, 2, 3, 2, -2),
    Sketcher.Constraint("Symmetric", 2, 2, 4, 2, -2),
    Sketcher.Constraint("Equal", 2, 5),
    Sketcher.Constraint("DistanceX", -1, 1, 2, 2, 15.0),
    Sketcher.Constraint("DistanceY", -1, 1, 1, 2, 4.5),
    Sketcher.Constraint("DistanceX", 2, 2, 2, 1, 10.267262),
    Sketcher.Constraint("DistanceX", -1, 1, 0, 2, 29.310409),
    Sketcher.Constraint("Distance", 0, 15.935417),
])
pad9 = body.newObject("PartDesign::Pad", "Pad008")
pad9.Profile = sketch22
pad9.Length = 5.85
doc.recompute()

fillet = body.newObject("PartDesign::Fillet", "Fillet")
fillet.Base = (pad9, edges_at(pad9, [(15, 4.5, 6.075), (-15, 4.5, 6.075)]))
fillet.Radius = 3
doc.recompute()

chamfer = body.newObject("PartDesign::Chamfer", "Chamfer")
chamfer.Base = (fillet, edges_at(fillet, [
    (-18.75, -5, 1.575),
    (18.75, -5, 1.575),
    (18.75, 4.5, 1.575),
    (-18.75, 4.5, 1.575),
]))
chamfer.Size = 2.5

sketch23 = body.newObject("Sketcher::SketchObject", "Sketch022")
sketch23.AttachmentSupport = (doc.getObject("XY_Plane"), [""])
sketch23.MapMode = "FlatFace"
sketch23.AttachmentOffset = App.Placement(Vector(0, 0, 9), App.Rotation())
sketch23.addGeometry([
    Part.Circle(Vector(-15, 0, 0), Vector(0, 0, 1), 1),
    Part.Circle(Vector(15, 0, 0), Vector(0, 0, 1), 1),
], False)
sketch23.addConstraint([
    Sketcher.Constraint("Equal", 0, 1),
    Sketcher.Constraint("Symmetric", 0, 3, 1, 3, -1, 1),
    Sketcher.Constraint("PointOnObject", 0, 3, -1),
    Sketcher.Constraint("Diameter", 0, 2.0),
    Sketcher.Constraint("DistanceX", 0, 3, -1, 1, 15.0),
])
pad10 = body.newObject("PartDesign::Pad", "Pad009")
pad10.Profile = sketch23
pad10.Length = 2
pad10.Reversed = True

sketch24 = body.newObject("Sketcher::SketchObject", "Sketch023")
sketch24.AttachmentSupport = (doc.getObject("XY_Plane"), [""])
sketch24.MapMode = "FlatFace"
sketch24.AttachmentOffset = App.Placement(Vector(0, 0, 3.15), App.Rotation())
sketch24.addGeometry([
    Part.LineSegment(Vector(39.8, 5, 0), Vector(39.8, -5, 0)),
    Part.LineSegment(Vector(39.8, -5, 0), Vector(38.8, -5, 0)),
    Part.LineSegment(Vector(38.8, -5, 0), Vector(38.8, 1.3, 0)),
    Part.LineSegment(Vector(38.8, 1.3, 0), Vector(39.8, 5, 0)),
    Part.LineSegment(Vector(-39.8, 5, 0), Vector(-38.8, 1.3, 0)),
    Part.LineSegment(Vector(-38.8, 1.3, 0), Vector(-38.8, -5, 0)),
    Part.LineSegment(Vector(-38.8, -5, 0), Vector(-39.8, -5, 0)),
    Part.LineSegment(Vector(-39.8, -5, 0), Vector(-39.8, 5, 0)),
], False)
sketch24.addConstraint([
    Sketcher.Constraint("Coincident", 0, 2, 1, 1),
    Sketcher.Constraint("Coincident", 1, 2, 2, 1),
    Sketcher.Constraint("Coincident", 2, 2, 3, 1),
    Sketcher.Constraint("Coincident", 3, 2, 0, 1),
    Sketcher.Constraint("Coincident", 4, 2, 5, 1),
    Sketcher.Constraint("Coincident", 5, 2, 6, 1),
    Sketcher.Constraint("Coincident", 6, 2, 7, 1),
    Sketcher.Constraint("Coincident", 7, 2, 4, 1),
    Sketcher.Constraint("Vertical", 0),
    Sketcher.Constraint("Horizontal", 1),
    Sketcher.Constraint("Vertical", 2),
    Sketcher.Constraint("Vertical", 5),
    Sketcher.Constraint("Horizontal", 6),
    Sketcher.Constraint("Vertical", 7),
    Sketcher.Constraint("Symmetric", 3, 2, 6, 2, -1, 1),
    Sketcher.Constraint("Symmetric", 2, 2, 4, 2, -2),
    Sketcher.Constraint("Horizontal", 1, 2, 5, 2),
    Sketcher.Constraint("Horizontal", 3, 2, 7, 2),
    Sketcher.Constraint("DistanceX", 1, 2, 1, 1, 1.0),
    Sketcher.Constraint("DistanceY", 0, 2, 0, 1, 10.0),
    Sketcher.Constraint("DistanceX", 4, 2, 2, 2, 77.5),
    Sketcher.Constraint("DistanceY", 2, 1, 2, 2, 6.325765),
])
pad11 = body.newObject("PartDesign::Pad", "Pad010")
pad11.Profile = sketch24
pad11.Length = 5.85
doc.recompute()

fillet2 = body.newObject("PartDesign::Fillet", "Fillet001")
fillet2.Base = (pad11, edges_at(pad11, [(39.75, -5, 6.075), (-39.75, -5, 6.075)]))
fillet2.Radius = 7

doc.recompute()
